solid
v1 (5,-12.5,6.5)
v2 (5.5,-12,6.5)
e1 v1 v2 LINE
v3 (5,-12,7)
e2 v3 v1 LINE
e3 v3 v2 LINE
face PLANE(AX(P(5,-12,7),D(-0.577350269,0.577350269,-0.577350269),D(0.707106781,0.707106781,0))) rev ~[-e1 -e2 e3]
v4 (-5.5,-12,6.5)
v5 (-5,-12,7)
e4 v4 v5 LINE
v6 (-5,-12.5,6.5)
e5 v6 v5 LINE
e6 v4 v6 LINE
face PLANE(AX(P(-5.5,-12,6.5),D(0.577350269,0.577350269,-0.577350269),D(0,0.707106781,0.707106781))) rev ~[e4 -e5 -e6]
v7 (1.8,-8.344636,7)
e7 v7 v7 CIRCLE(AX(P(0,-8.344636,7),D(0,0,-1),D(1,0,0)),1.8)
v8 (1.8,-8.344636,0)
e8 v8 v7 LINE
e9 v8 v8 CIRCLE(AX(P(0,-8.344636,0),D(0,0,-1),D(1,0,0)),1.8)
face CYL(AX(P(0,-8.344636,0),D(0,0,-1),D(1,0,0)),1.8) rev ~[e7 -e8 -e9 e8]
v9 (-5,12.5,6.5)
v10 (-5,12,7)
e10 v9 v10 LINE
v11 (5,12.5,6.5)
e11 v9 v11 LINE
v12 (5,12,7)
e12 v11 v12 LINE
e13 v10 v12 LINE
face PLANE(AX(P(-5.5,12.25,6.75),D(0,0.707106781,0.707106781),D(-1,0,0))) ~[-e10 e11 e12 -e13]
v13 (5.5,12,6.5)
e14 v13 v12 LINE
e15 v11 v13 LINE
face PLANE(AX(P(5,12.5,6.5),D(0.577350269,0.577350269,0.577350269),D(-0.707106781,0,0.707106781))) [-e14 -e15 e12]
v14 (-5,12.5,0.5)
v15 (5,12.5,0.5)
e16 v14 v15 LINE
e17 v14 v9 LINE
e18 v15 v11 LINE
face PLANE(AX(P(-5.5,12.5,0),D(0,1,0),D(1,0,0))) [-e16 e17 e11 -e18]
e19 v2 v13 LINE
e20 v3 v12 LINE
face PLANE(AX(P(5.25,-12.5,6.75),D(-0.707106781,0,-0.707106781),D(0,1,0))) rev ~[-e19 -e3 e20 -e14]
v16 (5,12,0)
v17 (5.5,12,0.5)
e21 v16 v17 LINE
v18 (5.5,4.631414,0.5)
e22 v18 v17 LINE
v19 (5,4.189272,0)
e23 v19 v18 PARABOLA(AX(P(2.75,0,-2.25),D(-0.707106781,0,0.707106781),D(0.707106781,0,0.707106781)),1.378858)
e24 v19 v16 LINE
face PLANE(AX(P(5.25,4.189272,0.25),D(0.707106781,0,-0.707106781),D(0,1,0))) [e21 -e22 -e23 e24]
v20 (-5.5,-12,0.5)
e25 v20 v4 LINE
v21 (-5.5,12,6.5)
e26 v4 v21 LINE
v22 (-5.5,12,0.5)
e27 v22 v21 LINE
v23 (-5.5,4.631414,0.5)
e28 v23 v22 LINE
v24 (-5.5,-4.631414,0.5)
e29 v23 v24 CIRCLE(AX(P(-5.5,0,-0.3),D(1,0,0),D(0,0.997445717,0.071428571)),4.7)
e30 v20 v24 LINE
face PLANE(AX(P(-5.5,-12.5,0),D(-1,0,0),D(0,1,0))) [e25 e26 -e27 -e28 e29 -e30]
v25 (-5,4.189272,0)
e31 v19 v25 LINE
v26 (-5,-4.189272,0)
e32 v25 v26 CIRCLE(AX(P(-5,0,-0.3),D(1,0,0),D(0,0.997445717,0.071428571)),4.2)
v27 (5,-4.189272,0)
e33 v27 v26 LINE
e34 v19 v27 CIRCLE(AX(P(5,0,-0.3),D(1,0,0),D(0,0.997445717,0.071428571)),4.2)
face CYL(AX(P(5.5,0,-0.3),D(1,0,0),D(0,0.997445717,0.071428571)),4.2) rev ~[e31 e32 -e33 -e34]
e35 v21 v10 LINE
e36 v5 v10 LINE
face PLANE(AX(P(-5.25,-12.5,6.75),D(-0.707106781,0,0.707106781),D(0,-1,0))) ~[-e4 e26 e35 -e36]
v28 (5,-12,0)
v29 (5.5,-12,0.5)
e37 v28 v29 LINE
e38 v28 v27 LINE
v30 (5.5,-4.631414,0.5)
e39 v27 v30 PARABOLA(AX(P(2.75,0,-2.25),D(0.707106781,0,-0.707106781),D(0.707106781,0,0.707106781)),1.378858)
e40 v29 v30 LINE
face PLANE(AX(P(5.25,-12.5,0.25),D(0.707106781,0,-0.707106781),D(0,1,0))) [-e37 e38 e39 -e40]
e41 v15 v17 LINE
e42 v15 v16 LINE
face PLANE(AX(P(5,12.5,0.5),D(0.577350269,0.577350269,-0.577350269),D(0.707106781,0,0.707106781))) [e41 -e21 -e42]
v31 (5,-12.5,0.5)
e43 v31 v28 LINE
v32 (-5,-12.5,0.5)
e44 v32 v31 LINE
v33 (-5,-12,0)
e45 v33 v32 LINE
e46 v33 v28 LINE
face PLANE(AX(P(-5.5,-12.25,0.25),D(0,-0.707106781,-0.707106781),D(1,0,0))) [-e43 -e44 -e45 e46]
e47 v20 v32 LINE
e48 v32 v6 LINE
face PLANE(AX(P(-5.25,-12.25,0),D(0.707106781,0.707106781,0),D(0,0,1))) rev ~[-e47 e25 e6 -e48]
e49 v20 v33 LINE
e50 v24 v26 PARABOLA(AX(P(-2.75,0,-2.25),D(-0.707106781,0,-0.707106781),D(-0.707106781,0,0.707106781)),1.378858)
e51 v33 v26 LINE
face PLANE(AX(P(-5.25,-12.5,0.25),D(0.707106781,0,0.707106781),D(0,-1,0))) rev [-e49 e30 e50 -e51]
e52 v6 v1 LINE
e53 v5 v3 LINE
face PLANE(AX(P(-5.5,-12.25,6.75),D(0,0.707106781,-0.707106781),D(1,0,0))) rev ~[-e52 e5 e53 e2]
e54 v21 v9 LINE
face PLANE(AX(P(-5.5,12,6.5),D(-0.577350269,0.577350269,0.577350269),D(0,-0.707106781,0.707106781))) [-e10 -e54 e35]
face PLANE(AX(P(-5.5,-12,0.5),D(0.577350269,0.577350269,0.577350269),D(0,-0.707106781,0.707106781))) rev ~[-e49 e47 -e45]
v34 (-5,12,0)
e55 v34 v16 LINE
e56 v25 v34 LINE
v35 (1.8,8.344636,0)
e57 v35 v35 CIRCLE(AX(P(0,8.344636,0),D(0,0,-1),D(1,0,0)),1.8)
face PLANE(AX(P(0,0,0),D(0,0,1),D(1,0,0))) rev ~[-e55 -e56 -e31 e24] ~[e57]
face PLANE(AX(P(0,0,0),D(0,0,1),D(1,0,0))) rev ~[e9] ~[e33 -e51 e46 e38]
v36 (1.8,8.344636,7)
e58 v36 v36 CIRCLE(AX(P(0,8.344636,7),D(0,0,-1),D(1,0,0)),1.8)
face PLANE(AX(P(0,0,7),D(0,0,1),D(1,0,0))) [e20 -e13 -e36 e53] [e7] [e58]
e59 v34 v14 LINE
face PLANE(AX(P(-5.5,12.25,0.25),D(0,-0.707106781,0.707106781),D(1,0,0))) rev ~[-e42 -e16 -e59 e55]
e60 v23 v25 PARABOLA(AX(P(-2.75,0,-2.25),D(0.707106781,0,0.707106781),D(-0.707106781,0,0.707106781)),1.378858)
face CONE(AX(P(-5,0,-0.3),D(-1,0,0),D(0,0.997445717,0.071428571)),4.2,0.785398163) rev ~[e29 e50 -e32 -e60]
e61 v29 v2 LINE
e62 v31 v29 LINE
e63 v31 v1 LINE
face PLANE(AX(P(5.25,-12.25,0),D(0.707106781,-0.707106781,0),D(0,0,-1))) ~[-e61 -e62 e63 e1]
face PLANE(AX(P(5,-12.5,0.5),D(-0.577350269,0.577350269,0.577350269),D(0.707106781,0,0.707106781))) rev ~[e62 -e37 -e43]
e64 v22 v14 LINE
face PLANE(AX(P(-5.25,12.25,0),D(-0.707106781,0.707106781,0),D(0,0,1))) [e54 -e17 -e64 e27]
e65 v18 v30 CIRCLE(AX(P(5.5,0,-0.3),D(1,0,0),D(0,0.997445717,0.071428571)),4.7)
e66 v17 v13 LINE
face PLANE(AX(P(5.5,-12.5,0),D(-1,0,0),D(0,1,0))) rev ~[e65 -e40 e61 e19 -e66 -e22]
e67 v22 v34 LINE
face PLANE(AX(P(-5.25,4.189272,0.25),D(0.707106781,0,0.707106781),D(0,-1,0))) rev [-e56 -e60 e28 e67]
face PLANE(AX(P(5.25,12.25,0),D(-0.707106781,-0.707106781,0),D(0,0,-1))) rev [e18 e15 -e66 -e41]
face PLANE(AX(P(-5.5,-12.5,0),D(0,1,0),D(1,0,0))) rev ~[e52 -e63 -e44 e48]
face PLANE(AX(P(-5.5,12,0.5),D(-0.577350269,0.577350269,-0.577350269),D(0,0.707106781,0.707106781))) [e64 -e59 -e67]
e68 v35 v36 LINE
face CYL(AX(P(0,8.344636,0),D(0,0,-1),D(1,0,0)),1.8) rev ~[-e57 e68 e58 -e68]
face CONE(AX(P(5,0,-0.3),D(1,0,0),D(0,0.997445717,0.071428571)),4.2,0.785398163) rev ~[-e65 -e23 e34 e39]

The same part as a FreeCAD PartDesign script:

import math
import FreeCAD as App
import Part
import Sketcher
Q = App.Units.Quantity


def edges_at(feature, points):
    """Names of the edges that pass closest to the given points."""
    edges = feature.Shape.Edges
    near = lambda p: min(range(len(edges)), key=lambda i: edges[i].distToShape(Part.Vertex(*p))[0])
    return sorted({f"Edge{near(p) + 1}" for p in points})

doc = App.newDocument("Part")
body = doc.addObject("PartDesign::Body", "Body")

sketch1 = doc.addObject("Sketcher::SketchObject", "Sketch")
body.addObject(sketch1)
sketch1.AttachmentSupport = (doc.XY_Plane, [""])
sketch1.MapMode = "FlatFace"
sketch1.addGeometry([
    Part.LineSegment(App.Vector(-6, 12, 0), App.Vector(-6, -12, 0)),
    Part.LineSegment(App.Vector(-6, -12, 0), App.Vector(6, -12, 0)),
    Part.LineSegment(App.Vector(6, -12, 0), App.Vector(6, 12, 0)),
    Part.LineSegment(App.Vector(6, 12, 0), App.Vector(-6, 12, 0)),
], False)
sketch1.addConstraint([
    Sketcher.Constraint("Coincident", 0, 2, 1, 1),
    Sketcher.Constraint("Coincident", 1, 2, 2, 1),
    Sketcher.Constraint("Coincident", 2, 2, 3, 1),
    Sketcher.Constraint("Coincident", 3, 2, 0, 1),
    Sketcher.Constraint("Vertical", 0),
    Sketcher.Constraint("Horizontal", 1),
    Sketcher.Constraint("Vertical", 2),
    Sketcher.Constraint("Horizontal", 3),
    Sketcher.Constraint("Symmetric", 0, 2, 2, 2, -1, 1),
    Sketcher.Constraint("DistanceX", 1, 1, 1, 2, Q("11 mm")),
    Sketcher.Constraint("DistanceY", 0, 2, 0, 1, Q("25 mm")),
])
pad1 = doc.addObject("PartDesign::Pad", "Pad")
body.addObject(pad1)
pad1.Profile = sketch1
pad1.Length = 7

sketch2 = doc.addObject("Sketcher::SketchObject", "Sketch001")
body.addObject(sketch2)
sketch2.AttachmentSupport = (doc.YZ_Plane, [""])
sketch2.MapMode = "FlatFace"
sketch2.AttachmentOffset = App.Placement(App.Vector(0, 0, 5.5), App.Rotation())
sketch2.addGeometry([
    Part.LineSegment(App.Vector(-4.2, 0, 0), App.Vector(4.2, 0, 0)),
    Part.ArcOfCircle(Part.Circle(App.Vector(0, -0.3, 0), App.Vector(0, 0, 1), 4.2), math.radians(4), math.radians(176)),
], False)
sketch2.addConstraint([
    Sketcher.Constraint("Coincident", 0, 1, 1, 2),
    Sketcher.Constraint("Coincident", 1, 1, 0, 2),
    Sketcher.Constraint("Horizontal", 0),
    Sketcher.Constraint("Symmetric", 0, 1, 1, 1, -1, 1),
    Sketcher.Constraint("Radius", 1, Q("4.2 mm")),
    Sketcher.Constraint("DistanceY", 1, 3, -1, 1, Q("0.3 mm")),
])
pocket1 = doc.addObject("PartDesign::Pocket", "Pocket")
body.addObject(pocket1)
pocket1.Profile = sketch2
pocket1.Type = "ThroughAll"

sketch3 = doc.addObject("Sketcher::SketchObject", "Sketch002")
body.addObject(sketch3)
sketch3.AttachmentSupport = (doc.XY_Plane, [""])
sketch3.MapMode = "FlatFace"
sketch3.addGeometry([
    Part.Circle(App.Vector(0, -8.3, 0), App.Vector(0, 0, 1), 1.8),
    Part.Circle(App.Vector(0, 8.3, 0), App.Vector(0, 0, 1), 1.8),
], False)
sketch3.addConstraint([
    Sketcher.Constraint("Equal", 0, 1),
    Sketcher.Constraint("Symmetric", 0, 3, 1, 3, -1, 1),
    Sketcher.Constraint("PointOnObject", 0, 3, -2),
    Sketcher.Constraint("Diameter", 0, Q("3.6 mm")),
    Sketcher.Constraint("DistanceY", 0, 3, -1, 1, Q("8.344636 mm")),
])
pocket2 = doc.addObject("PartDesign::Pocket", "Pocket001")
body.addObject(pocket2)
pocket2.Profile = sketch3
pocket2.Type = "ThroughAll"
pocket2.Reversed = True
doc.recompute()

chamfer = doc.addObject("PartDesign::Chamfer", "Chamfer")
body.addObject(chamfer)
chamfer.Base = (pocket2, edges_at(pocket2, [
    (5.5, 0, 3.9),
    (5.5, 8.345, 0),
    (0, 12.5, 0),
    (-5.5, 8.345, 0),
    (5.5, -8.345, 0),
    (0, -12.5, 0),
    (-5.5, -8.345, 0),
    (5.5, -12.5, 3.5),
    (0, -12.5, 7),
    (-5.5, -12.5, 3.5),
    (5.5, 0, 7),
    (5.5, 12.5, 3.5),
    (0, 12.5, 7),
    (-5.5, 12.5, 3.5),
    (-5.5, 0, 7),
    (-5.5, 0, 3.9),
]))
chamfer.Size = 0.5

doc.recompute()
